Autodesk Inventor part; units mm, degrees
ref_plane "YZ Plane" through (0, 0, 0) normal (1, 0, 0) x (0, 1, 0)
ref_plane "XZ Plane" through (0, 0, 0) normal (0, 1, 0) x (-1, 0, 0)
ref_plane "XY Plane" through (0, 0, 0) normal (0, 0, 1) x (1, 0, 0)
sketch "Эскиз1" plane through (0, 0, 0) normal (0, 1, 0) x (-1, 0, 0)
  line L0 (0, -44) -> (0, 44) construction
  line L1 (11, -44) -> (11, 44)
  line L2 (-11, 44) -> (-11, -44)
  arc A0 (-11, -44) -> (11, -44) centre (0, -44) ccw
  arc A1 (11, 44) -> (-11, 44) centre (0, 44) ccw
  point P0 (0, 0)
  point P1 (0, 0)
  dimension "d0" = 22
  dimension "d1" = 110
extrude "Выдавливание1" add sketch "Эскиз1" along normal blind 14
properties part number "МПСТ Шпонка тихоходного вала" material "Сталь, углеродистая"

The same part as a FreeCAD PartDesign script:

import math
import FreeCAD as App
import Part
import Sketcher

V = App.Vector
Q = App.Units.Quantity

doc = App.newDocument("Part")
params = doc.addObject("Spreadsheet::Sheet", "Params")
for row, (alias, value) in enumerate([
    ("sketch1_radius", "11 mm"),
    ("sketch1_height", "88 mm"),
    ("pad1_length", "14 mm"),
], start=1):
    params.set(f"A{row}", alias)
    params.set(f"B{row}", "=" + value)
    params.setAlias(f"B{row}", alias)

body = doc.addObject("PartDesign::Body", "Body")

sketch1 = body.newObject("Sketcher::SketchObject", "Sketch")
sketch1.AttachmentSupport = (doc.getObject("XZ_Plane"), [""])
sketch1.MapMode = "FlatFace"
sketch1.addGeometry(Part.ArcOfCircle(Part.Circle(V(0, -44, 0), V(0, 0, 1), 11), math.radians(180), math.radians(360)), False)
sketch1.addGeometry(Part.LineSegment(V(-11, -44, 0), V(-11, 44, 0)), False)
sketch1.addGeometry(Part.ArcOfCircle(Part.Circle(V(0, 44, 0), V(0, 0, 1), 11), math.radians(0), math.radians(180)), False)
sketch1.addGeometry(Part.LineSegment(V(11, 44, 0), V(11, -44, 0)), False)
sketch1.addConstraint(Sketcher.Constraint("Tangent", 0, 1, 1, 1))
sketch1.addConstraint(Sketcher.Constraint("Tangent", 1, 2, 2, 2))
sketch1.addConstraint(Sketcher.Constraint("Tangent", 2, 1, 3, 1))
sketch1.addConstraint(Sketcher.Constraint("Tangent", 3, 2, 0, 2))
sketch1.addConstraint(Sketcher.Constraint("Vertical", 1))
sketch1.addConstraint(Sketcher.Constraint("Vertical", 3))
sketch1.addConstraint(Sketcher.Constraint("Symmetric", 0, 3, 2, 3, -1, 1))
sketch1.addConstraint(Sketcher.Constraint("Radius", 0, Q("11 mm")))
sketch1.addConstraint(Sketcher.Constraint("DistanceY", 1, 1, 1, 2, Q("88 mm")))
sketch1.setExpression("Constraints[7]", "Params.sketch1_radius")
sketch1.setExpression("Constraints[8]", "Params.sketch1_height")
pad1 = body.newObject("PartDesign::Pad", "Pad")
pad1.Profile = sketch1
pad1.setExpression("Length", "Params.pad1_length")
pad1.Reversed = True

doc.recompute()
